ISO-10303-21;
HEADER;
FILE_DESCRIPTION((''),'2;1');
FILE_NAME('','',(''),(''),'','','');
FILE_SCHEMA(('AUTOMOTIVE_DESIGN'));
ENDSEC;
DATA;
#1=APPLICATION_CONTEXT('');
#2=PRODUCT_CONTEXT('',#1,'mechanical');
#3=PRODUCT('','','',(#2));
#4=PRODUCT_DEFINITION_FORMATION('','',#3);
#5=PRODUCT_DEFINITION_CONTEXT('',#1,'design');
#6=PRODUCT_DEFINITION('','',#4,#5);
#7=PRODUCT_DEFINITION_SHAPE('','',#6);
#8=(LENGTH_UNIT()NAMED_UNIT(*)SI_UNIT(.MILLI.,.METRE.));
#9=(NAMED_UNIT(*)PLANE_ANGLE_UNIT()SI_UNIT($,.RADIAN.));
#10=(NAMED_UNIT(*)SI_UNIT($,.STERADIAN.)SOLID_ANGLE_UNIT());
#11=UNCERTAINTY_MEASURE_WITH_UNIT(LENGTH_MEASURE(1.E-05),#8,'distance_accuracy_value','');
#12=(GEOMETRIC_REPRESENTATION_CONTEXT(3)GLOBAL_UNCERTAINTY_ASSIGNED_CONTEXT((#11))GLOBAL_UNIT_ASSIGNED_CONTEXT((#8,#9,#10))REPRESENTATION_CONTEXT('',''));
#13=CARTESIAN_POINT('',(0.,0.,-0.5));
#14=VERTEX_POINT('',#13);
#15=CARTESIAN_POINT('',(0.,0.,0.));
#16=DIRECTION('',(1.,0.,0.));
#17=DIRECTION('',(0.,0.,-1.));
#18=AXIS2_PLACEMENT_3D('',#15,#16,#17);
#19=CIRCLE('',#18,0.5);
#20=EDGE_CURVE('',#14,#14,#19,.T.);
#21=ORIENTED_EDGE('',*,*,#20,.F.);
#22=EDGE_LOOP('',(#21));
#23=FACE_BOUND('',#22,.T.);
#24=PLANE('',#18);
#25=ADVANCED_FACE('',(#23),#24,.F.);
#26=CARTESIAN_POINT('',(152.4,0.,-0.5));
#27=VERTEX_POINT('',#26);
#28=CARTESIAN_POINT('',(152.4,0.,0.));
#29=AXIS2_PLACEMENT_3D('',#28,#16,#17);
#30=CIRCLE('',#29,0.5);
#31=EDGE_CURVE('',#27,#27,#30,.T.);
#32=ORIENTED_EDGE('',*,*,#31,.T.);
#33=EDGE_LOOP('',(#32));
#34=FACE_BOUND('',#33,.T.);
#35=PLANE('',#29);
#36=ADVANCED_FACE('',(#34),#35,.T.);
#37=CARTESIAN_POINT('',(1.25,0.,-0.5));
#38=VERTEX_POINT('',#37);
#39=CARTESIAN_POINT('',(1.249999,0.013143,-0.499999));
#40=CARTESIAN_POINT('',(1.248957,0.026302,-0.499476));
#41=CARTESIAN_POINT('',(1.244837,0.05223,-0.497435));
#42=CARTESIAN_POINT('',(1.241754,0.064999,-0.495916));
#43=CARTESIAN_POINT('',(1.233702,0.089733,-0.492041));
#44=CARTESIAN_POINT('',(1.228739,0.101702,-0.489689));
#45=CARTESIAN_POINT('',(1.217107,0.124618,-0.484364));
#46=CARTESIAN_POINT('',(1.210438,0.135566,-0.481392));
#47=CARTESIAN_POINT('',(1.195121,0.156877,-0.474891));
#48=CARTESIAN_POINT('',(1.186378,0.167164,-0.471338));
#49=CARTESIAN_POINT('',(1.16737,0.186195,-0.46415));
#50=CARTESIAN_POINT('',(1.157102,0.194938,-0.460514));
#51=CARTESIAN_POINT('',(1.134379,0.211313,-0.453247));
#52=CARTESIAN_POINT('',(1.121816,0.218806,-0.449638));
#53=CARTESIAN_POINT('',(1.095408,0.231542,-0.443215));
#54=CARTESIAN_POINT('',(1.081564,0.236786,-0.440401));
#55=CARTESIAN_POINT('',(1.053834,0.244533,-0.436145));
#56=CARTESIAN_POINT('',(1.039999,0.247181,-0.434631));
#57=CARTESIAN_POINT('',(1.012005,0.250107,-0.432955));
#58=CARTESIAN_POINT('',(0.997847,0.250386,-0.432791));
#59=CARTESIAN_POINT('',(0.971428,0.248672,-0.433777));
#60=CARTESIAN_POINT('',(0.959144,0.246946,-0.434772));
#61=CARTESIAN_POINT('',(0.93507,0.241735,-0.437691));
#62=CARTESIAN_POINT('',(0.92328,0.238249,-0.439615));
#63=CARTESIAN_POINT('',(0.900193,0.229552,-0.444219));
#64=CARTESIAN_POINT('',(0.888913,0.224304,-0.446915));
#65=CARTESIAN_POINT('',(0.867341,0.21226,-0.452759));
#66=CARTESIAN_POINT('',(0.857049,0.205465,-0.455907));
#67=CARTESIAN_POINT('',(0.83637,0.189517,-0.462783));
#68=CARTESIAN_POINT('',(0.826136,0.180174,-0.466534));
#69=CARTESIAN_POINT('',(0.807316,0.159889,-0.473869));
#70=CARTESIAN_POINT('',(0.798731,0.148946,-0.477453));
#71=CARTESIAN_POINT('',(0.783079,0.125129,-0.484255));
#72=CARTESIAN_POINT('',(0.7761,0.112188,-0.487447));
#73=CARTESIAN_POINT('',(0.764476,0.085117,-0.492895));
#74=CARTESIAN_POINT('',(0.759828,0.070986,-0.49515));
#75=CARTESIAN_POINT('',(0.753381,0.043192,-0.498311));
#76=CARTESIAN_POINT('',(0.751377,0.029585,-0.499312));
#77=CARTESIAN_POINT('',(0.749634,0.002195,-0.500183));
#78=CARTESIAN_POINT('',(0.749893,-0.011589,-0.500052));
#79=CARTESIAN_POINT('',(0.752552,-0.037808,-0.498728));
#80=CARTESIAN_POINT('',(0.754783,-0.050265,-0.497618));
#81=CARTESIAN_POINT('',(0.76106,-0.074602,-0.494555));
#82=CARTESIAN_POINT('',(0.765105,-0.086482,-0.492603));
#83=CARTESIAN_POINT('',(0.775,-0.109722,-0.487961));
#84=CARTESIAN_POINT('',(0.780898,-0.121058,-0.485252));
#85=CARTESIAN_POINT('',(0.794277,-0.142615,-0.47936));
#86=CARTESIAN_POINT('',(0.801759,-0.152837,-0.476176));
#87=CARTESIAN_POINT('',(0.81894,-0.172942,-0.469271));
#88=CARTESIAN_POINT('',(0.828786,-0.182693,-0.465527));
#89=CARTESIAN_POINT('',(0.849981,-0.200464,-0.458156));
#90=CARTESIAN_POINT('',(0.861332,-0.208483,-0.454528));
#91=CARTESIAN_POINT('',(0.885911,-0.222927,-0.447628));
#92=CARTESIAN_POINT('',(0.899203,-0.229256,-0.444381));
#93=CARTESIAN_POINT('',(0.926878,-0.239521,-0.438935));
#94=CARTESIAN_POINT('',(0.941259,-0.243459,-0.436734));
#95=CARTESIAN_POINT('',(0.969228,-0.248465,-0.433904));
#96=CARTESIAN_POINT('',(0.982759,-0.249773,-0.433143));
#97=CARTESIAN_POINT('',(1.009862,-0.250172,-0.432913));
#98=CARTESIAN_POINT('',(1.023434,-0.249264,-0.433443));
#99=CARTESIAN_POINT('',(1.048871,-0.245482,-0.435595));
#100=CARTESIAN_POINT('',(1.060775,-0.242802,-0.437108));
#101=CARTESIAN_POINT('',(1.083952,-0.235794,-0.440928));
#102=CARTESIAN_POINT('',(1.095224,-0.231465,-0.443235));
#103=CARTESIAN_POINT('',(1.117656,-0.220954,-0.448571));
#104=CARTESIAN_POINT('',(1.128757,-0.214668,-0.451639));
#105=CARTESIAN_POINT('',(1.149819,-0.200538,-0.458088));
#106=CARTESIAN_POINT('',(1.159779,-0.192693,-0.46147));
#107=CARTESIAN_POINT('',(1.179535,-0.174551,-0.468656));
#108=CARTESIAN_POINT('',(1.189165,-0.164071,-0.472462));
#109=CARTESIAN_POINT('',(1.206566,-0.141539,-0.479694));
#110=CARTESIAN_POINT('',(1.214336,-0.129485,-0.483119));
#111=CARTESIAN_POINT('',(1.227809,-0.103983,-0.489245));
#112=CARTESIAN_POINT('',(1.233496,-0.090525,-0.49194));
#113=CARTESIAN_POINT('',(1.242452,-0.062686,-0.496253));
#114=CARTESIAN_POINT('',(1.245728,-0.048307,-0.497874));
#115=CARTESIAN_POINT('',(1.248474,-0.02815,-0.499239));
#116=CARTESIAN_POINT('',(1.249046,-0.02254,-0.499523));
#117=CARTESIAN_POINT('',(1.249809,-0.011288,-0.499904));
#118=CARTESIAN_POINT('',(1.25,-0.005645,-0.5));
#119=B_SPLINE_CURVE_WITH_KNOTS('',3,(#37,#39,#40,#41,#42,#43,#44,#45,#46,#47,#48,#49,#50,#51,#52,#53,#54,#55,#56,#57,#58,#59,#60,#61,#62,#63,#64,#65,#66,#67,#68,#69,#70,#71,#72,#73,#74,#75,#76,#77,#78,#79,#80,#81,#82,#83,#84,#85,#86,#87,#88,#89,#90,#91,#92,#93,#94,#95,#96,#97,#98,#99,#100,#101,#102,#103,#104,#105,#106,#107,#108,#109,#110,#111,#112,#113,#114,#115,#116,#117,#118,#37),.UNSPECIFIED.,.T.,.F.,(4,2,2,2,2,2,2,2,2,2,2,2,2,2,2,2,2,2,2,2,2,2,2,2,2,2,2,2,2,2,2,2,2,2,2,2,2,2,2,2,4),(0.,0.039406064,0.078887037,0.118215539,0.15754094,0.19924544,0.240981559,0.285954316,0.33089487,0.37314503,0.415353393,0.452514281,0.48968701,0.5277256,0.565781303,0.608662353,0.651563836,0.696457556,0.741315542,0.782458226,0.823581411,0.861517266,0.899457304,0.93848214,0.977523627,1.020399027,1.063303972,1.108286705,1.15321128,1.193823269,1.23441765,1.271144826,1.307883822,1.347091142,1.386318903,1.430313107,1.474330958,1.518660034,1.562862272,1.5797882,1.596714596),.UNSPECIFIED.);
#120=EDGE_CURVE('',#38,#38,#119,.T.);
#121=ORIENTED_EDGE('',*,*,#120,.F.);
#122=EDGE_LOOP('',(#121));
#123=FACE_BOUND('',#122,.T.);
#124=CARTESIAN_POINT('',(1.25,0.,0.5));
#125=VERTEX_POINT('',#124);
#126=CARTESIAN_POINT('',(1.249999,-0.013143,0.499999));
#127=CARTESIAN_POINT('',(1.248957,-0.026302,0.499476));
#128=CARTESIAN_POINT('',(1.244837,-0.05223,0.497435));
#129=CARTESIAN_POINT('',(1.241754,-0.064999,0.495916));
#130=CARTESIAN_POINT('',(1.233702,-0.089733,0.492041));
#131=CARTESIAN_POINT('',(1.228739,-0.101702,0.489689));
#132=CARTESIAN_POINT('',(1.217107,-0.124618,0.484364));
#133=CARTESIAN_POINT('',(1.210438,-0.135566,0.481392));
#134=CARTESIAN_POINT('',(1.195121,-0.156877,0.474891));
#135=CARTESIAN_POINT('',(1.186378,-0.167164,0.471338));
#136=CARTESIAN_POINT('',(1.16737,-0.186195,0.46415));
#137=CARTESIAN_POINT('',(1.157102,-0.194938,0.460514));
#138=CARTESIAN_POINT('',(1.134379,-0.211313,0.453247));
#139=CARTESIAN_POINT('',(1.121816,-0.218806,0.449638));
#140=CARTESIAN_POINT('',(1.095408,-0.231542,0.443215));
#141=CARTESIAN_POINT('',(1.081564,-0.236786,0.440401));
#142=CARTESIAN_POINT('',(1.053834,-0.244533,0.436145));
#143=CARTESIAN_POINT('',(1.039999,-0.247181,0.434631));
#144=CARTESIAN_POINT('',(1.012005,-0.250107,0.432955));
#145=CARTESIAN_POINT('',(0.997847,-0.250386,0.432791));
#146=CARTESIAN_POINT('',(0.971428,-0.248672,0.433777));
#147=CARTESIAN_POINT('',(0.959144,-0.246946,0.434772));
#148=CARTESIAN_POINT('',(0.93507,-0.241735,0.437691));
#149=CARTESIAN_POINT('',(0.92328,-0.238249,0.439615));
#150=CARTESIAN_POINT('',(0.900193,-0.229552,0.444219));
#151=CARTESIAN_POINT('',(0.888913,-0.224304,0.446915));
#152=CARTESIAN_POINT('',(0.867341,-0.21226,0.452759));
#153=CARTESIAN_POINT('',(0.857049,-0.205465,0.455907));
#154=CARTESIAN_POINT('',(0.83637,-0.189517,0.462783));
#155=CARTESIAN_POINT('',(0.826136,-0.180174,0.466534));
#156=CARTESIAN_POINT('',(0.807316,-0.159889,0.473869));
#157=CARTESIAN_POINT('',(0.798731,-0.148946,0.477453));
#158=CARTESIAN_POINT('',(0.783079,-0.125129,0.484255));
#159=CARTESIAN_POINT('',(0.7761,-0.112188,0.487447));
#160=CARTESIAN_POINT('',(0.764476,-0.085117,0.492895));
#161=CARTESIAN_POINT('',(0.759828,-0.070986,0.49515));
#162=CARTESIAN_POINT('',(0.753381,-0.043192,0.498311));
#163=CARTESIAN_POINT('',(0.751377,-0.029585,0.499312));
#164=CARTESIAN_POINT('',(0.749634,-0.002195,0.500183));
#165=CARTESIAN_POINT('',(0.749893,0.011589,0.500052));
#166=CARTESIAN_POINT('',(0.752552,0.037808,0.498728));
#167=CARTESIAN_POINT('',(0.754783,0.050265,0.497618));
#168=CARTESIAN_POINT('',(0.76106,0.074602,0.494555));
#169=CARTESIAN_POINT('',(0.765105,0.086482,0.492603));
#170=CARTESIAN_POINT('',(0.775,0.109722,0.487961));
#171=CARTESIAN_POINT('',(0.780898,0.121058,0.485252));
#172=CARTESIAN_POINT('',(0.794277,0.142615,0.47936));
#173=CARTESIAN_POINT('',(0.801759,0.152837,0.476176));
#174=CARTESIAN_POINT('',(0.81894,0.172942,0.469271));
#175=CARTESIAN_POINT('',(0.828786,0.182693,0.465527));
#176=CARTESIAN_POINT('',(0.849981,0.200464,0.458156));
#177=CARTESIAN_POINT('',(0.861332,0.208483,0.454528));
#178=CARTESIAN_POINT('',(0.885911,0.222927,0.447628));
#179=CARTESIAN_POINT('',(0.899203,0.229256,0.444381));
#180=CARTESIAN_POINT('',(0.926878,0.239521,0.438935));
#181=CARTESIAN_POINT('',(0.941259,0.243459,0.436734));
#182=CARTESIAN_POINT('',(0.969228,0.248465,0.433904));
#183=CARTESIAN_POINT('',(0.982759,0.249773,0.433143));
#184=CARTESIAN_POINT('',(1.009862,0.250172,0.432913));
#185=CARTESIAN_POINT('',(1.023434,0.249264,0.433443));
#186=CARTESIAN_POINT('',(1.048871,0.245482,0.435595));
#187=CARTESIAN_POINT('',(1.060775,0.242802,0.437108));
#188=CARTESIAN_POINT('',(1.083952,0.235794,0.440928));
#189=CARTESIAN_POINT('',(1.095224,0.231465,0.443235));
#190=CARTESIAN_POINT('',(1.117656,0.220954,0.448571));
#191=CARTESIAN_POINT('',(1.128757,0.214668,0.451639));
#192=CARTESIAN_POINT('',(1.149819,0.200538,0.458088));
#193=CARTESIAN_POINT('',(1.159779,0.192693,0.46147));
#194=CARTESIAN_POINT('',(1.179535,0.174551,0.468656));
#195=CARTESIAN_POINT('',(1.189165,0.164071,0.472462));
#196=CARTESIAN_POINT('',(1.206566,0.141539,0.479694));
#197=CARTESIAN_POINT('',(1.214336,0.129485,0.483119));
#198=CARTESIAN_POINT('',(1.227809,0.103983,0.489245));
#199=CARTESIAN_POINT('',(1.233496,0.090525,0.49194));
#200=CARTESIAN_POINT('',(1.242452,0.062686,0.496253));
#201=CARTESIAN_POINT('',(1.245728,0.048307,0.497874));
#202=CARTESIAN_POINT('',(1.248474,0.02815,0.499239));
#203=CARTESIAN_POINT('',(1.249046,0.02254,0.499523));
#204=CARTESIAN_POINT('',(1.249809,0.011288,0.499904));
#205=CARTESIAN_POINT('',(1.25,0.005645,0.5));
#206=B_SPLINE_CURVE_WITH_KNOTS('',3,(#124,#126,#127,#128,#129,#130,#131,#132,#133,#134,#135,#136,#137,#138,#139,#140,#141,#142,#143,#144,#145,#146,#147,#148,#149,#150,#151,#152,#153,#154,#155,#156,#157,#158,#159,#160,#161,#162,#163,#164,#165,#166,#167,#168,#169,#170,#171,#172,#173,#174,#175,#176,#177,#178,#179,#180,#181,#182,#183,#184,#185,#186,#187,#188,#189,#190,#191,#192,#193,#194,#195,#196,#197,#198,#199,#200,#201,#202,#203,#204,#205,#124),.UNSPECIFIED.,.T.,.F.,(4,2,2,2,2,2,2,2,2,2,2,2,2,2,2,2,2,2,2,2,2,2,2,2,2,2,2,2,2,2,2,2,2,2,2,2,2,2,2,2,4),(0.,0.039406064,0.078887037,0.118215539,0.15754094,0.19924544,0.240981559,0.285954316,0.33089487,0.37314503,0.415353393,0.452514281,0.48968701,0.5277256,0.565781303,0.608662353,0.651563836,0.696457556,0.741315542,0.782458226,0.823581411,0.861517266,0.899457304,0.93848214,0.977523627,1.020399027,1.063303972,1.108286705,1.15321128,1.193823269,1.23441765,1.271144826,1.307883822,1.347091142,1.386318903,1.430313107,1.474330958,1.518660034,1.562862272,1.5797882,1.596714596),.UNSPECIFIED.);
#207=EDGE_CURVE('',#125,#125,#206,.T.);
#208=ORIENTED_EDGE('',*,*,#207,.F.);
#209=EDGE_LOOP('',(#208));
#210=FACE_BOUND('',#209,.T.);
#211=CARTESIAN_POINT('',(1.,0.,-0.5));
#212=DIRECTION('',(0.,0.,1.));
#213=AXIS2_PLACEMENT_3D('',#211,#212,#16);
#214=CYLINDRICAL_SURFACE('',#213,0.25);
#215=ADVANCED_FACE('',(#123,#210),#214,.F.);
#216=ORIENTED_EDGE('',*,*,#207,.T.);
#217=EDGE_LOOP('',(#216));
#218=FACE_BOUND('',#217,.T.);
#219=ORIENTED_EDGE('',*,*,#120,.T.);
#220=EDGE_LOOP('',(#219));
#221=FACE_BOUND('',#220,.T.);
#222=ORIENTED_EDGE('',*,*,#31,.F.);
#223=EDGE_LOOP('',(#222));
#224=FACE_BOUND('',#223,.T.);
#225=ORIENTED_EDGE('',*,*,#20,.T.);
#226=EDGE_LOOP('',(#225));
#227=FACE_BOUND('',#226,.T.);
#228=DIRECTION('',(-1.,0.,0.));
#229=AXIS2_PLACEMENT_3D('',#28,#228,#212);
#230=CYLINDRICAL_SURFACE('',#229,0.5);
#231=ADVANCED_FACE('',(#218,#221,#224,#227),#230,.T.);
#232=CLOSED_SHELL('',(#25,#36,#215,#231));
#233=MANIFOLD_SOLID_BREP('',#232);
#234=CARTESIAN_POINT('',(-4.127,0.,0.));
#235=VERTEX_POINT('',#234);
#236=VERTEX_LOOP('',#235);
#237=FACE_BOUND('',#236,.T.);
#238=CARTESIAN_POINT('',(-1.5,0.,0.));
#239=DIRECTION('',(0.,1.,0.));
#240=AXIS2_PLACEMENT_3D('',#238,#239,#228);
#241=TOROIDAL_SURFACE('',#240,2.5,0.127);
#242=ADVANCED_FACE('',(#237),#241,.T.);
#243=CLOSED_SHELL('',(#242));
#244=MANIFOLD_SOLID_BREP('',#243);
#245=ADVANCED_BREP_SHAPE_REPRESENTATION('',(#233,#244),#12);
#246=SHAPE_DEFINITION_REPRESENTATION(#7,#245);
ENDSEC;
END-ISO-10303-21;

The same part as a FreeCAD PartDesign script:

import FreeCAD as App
import Part
import Sketcher

V = App.Vector

doc = App.newDocument("Part")
body = doc.addObject("PartDesign::Body", "Body")

sketch1 = body.newObject("Sketcher::SketchObject", "Sketch")
sketch1.AttachmentSupport = (doc.getObject("YZ_Plane"), [""])
sketch1.MapMode = "FlatFace"
sketch1.addGeometry(Part.Circle(V(0, 0, 0), V(0, 0, 1), 0.5), False)
sketch1.addConstraint([
    Sketcher.Constraint("Coincident", 0, 3, -1, 1),
    Sketcher.Constraint("Diameter", 0, 1.0),
])
pad1 = body.newObject("PartDesign::Pad", "Pad")
pad1.Profile = sketch1
pad1.Length = 152.4

sketch2 = body.newObject("Sketcher::SketchObject", "Sketch001")
sketch2.AttachmentSupport = (doc.getObject("XY_Plane"), [""])
sketch2.MapMode = "FlatFace"
sketch2.addGeometry(Part.Circle(V(1, 0, 0), V(0, 0, 1), 0.25), False)
sketch2.addConstraint([
    Sketcher.Constraint("PointOnObject", 0, 3, -1),
    Sketcher.Constraint("Diameter", 0, 0.5),
    Sketcher.Constraint("DistanceX", -1, 1, 0, 3, 1.0),
])
pocket1 = body.newObject("PartDesign::Pocket", "Pocket")
pocket1.Profile = sketch2
pocket1.Type = "ThroughAll"
pocket1.Midplane = True
body2 = doc.addObject("PartDesign::Body", "Body001")

sketch3 = body2.newObject("Sketcher::SketchObject", "Sketch002")
sketch3.AttachmentSupport = (doc.getObject("XY_Plane001"), [""])
sketch3.MapMode = "FlatFace"
sketch3.addGeometry(Part.Circle(V(1, 0, 0), V(0, 0, 1), 0.127), False)
sketch3.addGeometry(Part.LineSegment(V(-1.5, 0, 0), V(-1.5, -10, 0)), True)
sketch3.addConstraint([
    Sketcher.Constraint("Vertical", 1),
    Sketcher.Constraint("PointOnObject", 0, 3, -1),
    Sketcher.Constraint("PointOnObject", 1, 1, -1),
    Sketcher.Constraint("DistanceY", 1, 2, 1, 1, 10.0),
    Sketcher.Constraint("Diameter", 0, 0.254),
    Sketcher.Constraint("DistanceX", -1, 1, 0, 3, 1.0),
    Sketcher.Constraint("DistanceX", 1, 1, -1, 1, 1.5),
])
revolution = body2.newObject("PartDesign::Revolution", "Revolution")
revolution.Profile = sketch3
revolution.ReferenceAxis = (sketch3, ["Axis0"])
revolution.Angle = 360

doc.recompute()
